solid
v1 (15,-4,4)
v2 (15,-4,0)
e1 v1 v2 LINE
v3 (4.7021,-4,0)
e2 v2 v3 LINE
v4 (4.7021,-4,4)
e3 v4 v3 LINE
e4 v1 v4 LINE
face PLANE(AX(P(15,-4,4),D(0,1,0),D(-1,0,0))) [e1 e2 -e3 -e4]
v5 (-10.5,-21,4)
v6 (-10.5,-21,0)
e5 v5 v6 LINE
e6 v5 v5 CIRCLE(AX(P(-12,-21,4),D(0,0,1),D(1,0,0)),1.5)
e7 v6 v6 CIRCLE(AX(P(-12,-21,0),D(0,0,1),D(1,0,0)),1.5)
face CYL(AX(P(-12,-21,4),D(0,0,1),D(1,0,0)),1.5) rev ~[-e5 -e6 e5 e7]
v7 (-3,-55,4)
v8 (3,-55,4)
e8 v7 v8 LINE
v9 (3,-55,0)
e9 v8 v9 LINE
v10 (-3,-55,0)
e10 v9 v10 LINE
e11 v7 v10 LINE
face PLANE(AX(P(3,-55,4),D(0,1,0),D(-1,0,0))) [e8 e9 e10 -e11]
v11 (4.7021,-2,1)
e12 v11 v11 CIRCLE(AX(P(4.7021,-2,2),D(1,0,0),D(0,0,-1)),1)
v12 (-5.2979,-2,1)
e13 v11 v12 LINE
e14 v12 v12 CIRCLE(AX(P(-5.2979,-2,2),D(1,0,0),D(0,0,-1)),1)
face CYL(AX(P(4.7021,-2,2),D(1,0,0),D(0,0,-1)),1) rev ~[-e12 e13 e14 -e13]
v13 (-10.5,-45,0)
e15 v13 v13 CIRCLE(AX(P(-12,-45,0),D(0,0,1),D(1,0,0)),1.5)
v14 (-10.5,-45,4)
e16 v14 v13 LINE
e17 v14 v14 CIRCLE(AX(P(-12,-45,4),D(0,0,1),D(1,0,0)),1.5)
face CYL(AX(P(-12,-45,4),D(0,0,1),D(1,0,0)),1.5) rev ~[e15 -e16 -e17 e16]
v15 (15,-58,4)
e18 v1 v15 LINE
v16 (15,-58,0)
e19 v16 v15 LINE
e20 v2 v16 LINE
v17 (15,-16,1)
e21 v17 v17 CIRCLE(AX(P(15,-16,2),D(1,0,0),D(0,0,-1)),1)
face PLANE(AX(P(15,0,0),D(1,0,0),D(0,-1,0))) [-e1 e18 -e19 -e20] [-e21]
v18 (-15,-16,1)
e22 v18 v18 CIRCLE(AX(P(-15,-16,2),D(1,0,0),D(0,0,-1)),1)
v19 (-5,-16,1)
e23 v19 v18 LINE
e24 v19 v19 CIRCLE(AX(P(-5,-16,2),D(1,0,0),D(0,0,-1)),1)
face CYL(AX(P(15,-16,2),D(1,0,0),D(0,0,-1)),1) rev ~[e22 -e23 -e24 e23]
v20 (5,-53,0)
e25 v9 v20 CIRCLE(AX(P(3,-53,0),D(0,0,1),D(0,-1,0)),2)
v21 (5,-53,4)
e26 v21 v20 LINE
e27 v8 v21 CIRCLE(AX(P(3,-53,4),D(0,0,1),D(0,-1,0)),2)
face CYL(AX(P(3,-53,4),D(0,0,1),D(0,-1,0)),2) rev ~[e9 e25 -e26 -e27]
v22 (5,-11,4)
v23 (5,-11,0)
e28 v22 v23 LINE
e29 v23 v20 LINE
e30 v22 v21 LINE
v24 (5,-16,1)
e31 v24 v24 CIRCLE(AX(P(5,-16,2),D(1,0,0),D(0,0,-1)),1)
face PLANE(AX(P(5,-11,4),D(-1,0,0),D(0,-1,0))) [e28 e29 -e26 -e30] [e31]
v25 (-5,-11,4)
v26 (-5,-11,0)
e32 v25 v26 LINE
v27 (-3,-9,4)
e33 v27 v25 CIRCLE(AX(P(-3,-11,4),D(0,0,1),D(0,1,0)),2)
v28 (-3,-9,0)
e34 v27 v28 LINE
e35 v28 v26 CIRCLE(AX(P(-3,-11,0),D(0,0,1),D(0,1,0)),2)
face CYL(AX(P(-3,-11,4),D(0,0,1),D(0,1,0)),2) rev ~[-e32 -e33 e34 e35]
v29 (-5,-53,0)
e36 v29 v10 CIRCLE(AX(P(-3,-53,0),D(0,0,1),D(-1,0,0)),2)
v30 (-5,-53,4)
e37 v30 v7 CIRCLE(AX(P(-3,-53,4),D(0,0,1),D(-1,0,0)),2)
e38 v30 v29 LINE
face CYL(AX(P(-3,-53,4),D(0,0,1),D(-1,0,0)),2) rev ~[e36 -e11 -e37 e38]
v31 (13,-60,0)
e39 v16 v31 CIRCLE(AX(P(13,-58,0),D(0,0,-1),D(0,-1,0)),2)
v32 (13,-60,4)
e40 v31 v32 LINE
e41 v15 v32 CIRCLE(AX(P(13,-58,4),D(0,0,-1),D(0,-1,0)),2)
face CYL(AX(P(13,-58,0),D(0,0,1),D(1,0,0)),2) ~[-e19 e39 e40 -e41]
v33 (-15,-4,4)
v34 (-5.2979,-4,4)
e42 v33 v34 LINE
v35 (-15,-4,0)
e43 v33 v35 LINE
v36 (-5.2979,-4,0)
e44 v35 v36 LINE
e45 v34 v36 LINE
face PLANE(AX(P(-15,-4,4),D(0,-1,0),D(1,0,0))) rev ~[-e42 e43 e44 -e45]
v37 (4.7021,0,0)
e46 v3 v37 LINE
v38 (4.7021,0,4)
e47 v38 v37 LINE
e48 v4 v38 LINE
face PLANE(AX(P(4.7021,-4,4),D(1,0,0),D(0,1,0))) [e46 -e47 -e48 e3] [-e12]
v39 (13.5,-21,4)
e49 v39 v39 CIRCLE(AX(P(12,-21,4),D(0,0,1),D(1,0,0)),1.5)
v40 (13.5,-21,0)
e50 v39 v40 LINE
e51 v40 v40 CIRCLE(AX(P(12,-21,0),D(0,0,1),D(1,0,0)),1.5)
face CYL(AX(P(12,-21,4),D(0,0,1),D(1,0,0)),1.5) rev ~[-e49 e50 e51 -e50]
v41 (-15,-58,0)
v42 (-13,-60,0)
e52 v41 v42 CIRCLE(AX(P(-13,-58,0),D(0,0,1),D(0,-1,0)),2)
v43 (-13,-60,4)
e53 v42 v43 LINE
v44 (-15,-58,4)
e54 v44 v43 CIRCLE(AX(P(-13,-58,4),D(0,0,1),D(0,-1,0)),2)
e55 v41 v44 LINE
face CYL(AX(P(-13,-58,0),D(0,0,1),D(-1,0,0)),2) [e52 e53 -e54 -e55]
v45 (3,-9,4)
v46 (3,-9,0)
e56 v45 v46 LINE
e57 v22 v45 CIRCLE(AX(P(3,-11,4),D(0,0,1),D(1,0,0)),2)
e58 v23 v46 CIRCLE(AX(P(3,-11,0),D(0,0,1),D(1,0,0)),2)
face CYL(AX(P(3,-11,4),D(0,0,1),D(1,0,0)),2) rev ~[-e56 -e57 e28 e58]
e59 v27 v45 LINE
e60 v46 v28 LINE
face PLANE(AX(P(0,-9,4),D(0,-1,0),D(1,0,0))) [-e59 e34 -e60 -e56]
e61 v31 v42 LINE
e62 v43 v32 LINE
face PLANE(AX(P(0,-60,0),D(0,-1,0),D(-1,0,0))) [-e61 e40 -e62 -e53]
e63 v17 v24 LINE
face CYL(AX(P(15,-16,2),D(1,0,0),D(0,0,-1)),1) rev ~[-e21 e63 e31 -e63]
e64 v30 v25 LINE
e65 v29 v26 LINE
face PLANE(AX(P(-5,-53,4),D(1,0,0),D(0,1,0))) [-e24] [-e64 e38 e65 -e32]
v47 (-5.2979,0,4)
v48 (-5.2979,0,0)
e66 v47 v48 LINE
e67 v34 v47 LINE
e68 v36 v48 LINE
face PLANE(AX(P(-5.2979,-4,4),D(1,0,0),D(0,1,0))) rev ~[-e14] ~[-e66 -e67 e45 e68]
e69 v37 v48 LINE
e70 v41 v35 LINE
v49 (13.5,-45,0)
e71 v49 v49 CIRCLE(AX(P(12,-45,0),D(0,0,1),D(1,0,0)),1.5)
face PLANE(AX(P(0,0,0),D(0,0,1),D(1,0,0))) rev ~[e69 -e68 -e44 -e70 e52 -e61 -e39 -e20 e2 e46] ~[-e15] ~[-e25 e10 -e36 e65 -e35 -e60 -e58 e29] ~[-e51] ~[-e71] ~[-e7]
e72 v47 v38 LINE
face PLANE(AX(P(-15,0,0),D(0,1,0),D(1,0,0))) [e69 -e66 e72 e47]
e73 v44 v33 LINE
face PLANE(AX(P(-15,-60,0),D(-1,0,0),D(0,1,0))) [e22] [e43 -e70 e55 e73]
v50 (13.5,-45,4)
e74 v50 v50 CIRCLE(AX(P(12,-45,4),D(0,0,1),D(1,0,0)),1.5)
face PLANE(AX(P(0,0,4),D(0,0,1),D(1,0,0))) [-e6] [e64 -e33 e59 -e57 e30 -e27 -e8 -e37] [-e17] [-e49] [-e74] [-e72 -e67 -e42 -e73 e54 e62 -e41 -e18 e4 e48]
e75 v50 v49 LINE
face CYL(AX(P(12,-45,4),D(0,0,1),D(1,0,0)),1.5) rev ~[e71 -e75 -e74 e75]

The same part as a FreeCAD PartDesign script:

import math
import FreeCAD as App
import Part
import Sketcher


def edges_at(feature, points):
    """Names of the edges that pass closest to the given points."""
    edges = feature.Shape.Edges
    near = lambda p: min(range(len(edges)), key=lambda i: edges[i].distToShape(Part.Vertex(*p))[0])
    return sorted({f"Edge{near(p) + 1}" for p in points})


def add_polygon(sketch, points):
    """Adds a closed chain of lines whose ends are joined by coincident constraints."""
    first, n = sketch.GeometryCount, len(points)
    for a, b in zip(points, points[1:] + points[:1]):
        sketch.addGeometry(Part.LineSegment(App.Vector(*a, 0), App.Vector(*b, 0)), False)
    for i in range(n):
        sketch.addConstraint(Sketcher.Constraint("Coincident", first + i, 2, first + (i + 1) % n, 1))

doc = App.newDocument("Part")
body = doc.addObject("PartDesign::Body", "Body")

# Sketch on XY plane
sketch1 = body.newObject("Sketcher::SketchObject", "Sketch")
sketch1.AttachmentSupport = (doc.getObject("XY_Plane"), [""])
sketch1.MapMode = "FlatFace"
add_polygon(sketch1, [(-15, 0), (-15, -60), (15, -60), (15, 0)])  # lines 0-3
sketch1.addConstraint(Sketcher.Constraint("Vertical", 0))
sketch1.addConstraint(Sketcher.Constraint("Horizontal", 1))
sketch1.addConstraint(Sketcher.Constraint("Vertical", 2))
sketch1.addConstraint(Sketcher.Constraint("Horizontal", 3))
sketch1.addConstraint(Sketcher.Constraint("Symmetric", 2, 2, 3, 2, -1, 1))
sketch1.addConstraint(Sketcher.Constraint("DistanceX", 1, 1, 1, 2, 30.0))
sketch1.addConstraint(Sketcher.Constraint("DistanceY", 0, 2, 0, 1, 60.0))
pad1 = body.newObject("PartDesign::Pad", "Pad")
pad1.Profile = sketch1
pad1.Length = 4

# Sketch on XY plane
sketch2 = body.newObject("Sketcher::SketchObject", "Sketch001")
sketch2.AttachmentSupport = (doc.getObject("XY_Plane"), [""])
sketch2.MapMode = "FlatFace"
sketch2.AttachmentOffset = App.Placement(App.Vector(0, 0, 4), App.Rotation())
add_polygon(sketch2, [(15, -4), (15, 0), (4.7, 0), (4.7, -4)])  # lines 0-3
add_polygon(sketch2, [(-5.3, -4), (-5.3, 0), (-15, 0), (-15, -4)])  # lines 4-7
sketch2.addGeometry(Part.LineSegment(App.Vector(3, -9, 0), App.Vector(-3, -9, 0)), False)  # 8
sketch2.addGeometry(Part.ArcOfCircle(Part.Circle(App.Vector(-3, -11, 0), App.Vector(0, 0, 1), 2), math.radians(90), math.radians(180)), False)  # 9
sketch2.addGeometry(Part.LineSegment(App.Vector(-5, -11, 0), App.Vector(-5, -53, 0)), False)  # 10
sketch2.addGeometry(Part.ArcOfCircle(Part.Circle(App.Vector(-3, -53, 0), App.Vector(0, 0, 1), 2), math.radians(180), math.radians(270)), False)  # 11
sketch2.addGeometry(Part.LineSegment(App.Vector(-3, -55, 0), App.Vector(3, -55, 0)), False)  # 12
sketch2.addGeometry(Part.ArcOfCircle(Part.Circle(App.Vector(3, -53, 0), App.Vector(0, 0, 1), 2), math.radians(-90), math.radians(0)), False)  # 13
sketch2.addGeometry(Part.LineSegment(App.Vector(5, -53, 0), App.Vector(5, -11, 0)), False)  # 14
sketch2.addGeometry(Part.ArcOfCircle(Part.Circle(App.Vector(3, -11, 0), App.Vector(0, 0, 1), 2), math.radians(0), math.radians(90)), False)  # 15
sketch2.addGeometry(Part.Circle(App.Vector(-12, -21, 0), App.Vector(0, 0, 1), 1.5), False)  # 16
sketch2.addGeometry(Part.Circle(App.Vector(-12, -45, 0), App.Vector(0, 0, 1), 1.5), False)  # 17
sketch2.addGeometry(Part.Circle(App.Vector(12, -21, 0), App.Vector(0, 0, 1), 1.5), False)  # 18
sketch2.addGeometry(Part.Circle(App.Vector(12, -45, 0), App.Vector(0, 0, 1), 1.5), False)  # 19
sketch2.addConstraint(Sketcher.Constraint("Tangent", 8, 2, 9, 1))
sketch2.addConstraint(Sketcher.Constraint("Tangent", 9, 2, 10, 1))
sketch2.addConstraint(Sketcher.Constraint("Tangent", 10, 2, 11, 1))
sketch2.addConstraint(Sketcher.Constraint("Tangent", 11, 2, 12, 1))
sketch2.addConstraint(Sketcher.Constraint("Tangent", 12, 2, 13, 1))
sketch2.addConstraint(Sketcher.Constraint("Tangent", 13, 2, 14, 1))
sketch2.addConstraint(Sketcher.Constraint("Tangent", 14, 2, 15, 1))
sketch2.addConstraint(Sketcher.Constraint("Tangent", 15, 2, 8, 1))
sketch2.addConstraint(Sketcher.Constraint("Vertical", 0))
sketch2.addConstraint(Sketcher.Constraint("Horizontal", 1))
sketch2.addConstraint(Sketcher.Constraint("Vertical", 2))
sketch2.addConstraint(Sketcher.Constraint("Horizontal", 3))
sketch2.addConstraint(Sketcher.Constraint("Vertical", 4))
sketch2.addConstraint(Sketcher.Constraint("Horizontal", 5))
sketch2.addConstraint(Sketcher.Constraint("Vertical", 6))
sketch2.addConstraint(Sketcher.Constraint("Horizontal", 7))
sketch2.addConstraint(Sketcher.Constraint("Horizontal", 8))
sketch2.addConstraint(Sketcher.Constraint("Vertical", 10))
sketch2.addConstraint(Sketcher.Constraint("Horizontal", 12))
sketch2.addConstraint(Sketcher.Constraint("Vertical", 14))
sketch2.addConstraint(Sketcher.Constraint("Equal", 9, 11))
sketch2.addConstraint(Sketcher.Constraint("Equal", 11, 13))
sketch2.addConstraint(Sketcher.Constraint("Equal", 13, 15))
sketch2.addConstraint(Sketcher.Constraint("Equal", 16, 17))
sketch2.addConstraint(Sketcher.Constraint("Equal", 17, 18))
sketch2.addConstraint(Sketcher.Constraint("Equal", 18, 19))
sketch2.addConstraint(Sketcher.Constraint("Symmetric", 0, 2, 5, 2, -1, 1))
sketch2.addConstraint(Sketcher.Constraint("Symmetric", 16, 3, 18, 3, -2))
sketch2.addConstraint(Sketcher.Constraint("Symmetric", 17, 3, 19, 3, -2))
sketch2.addConstraint(Sketcher.Constraint("PointOnObject", 0, 2, -1))
sketch2.addConstraint(Sketcher.Constraint("Horizontal", 3, 2, 6, 2))
sketch2.addConstraint(Sketcher.Constraint("Vertical", 16, 3, 17, 3))
sketch2.addConstraint(Sketcher.Constraint("Diameter", 16, 3.0))
sketch2.addConstraint(Sketcher.Constraint("Radius", 9, 2.0))
sketch2.addConstraint(Sketcher.Constraint("DistanceY", 0, 1, 0, 2, 4.0))
sketch2.addConstraint(Sketcher.Constraint("DistanceX", 9, 3, -1, 1, 3.0))
sketch2.addConstraint(Sketcher.Constraint("DistanceX", -1, 1, 13, 3, 3.0))
sketch2.addConstraint(Sketcher.Constraint("DistanceX", 16, 3, -1, 1, 12.0))
sketch2.addConstraint(Sketcher.Constraint("DistanceX", -1, 1, 0, 2, 15.0))
sketch2.addConstraint(Sketcher.Constraint("DistanceY", 16, 3, 9, 3, 10.0))
sketch2.addConstraint(Sketcher.Constraint("DistanceY", 17, 3, 16, 3, 24.0))
sketch2.addConstraint(Sketcher.Constraint("DistanceX", 4, 2, 1, 2, 10.0))
sketch2.addConstraint(Sketcher.Constraint("DistanceY", 8, 2, 7, 2, 5.0))
sketch2.addConstraint(Sketcher.Constraint("DistanceY", 11, 2, 17, 3, 10.0))
sketch2.addConstraint(Sketcher.Constraint("DistanceX", 1, 2, 1, 1, 10.298))
pocket1 = body.newObject("PartDesign::Pocket", "Pocket")
pocket1.Profile = sketch2
pocket1.Length = 4
doc.recompute()

fillet = body.newObject("PartDesign::Fillet", "Fillet")
fillet.Base = (pocket1, edges_at(pocket1, [(15, -60, 2), (-15, -60, 2)]))
fillet.Radius = 2

# Sketch on YZ plane
sketch3 = body.newObject("Sketcher::SketchObject", "Sketch002")
sketch3.AttachmentSupport = (doc.getObject("YZ_Plane"), [""])
sketch3.MapMode = "FlatFace"
sketch3.AttachmentOffset = App.Placement(App.Vector(0, 0, 4.7021), App.Rotation())
sketch3.addGeometry(Part.Circle(App.Vector(-2, 2, 0), App.Vector(0, 0, 1), 1), False)
sketch3.addConstraint(Sketcher.Constraint("Diameter", 0, 2.0))
sketch3.addConstraint(Sketcher.Constraint("DistanceX", 0, 3, -1, 1, 2.0))
sketch3.addConstraint(Sketcher.Constraint("DistanceY", -1, 1, 0, 3, 2.0))
pocket2 = body.newObject("PartDesign::Pocket", "Pocket001")
pocket2.Profile = sketch3
pocket2.Type = "ThroughAll"

# Sketch on YZ plane
sketch4 = body.newObject("Sketcher::SketchObject", "Sketch003")
sketch4.AttachmentSupport = (doc.getObject("YZ_Plane"), [""])
sketch4.MapMode = "FlatFace"
sketch4.AttachmentOffset = App.Placement(App.Vector(0, 0, 15), App.Rotation())
sketch4.addGeometry(Part.Circle(App.Vector(-16, 2, 0), App.Vector(0, 0, 1), 1), False)
sketch4.addConstraint(Sketcher.Constraint("Diameter", 0, 2.0))
sketch4.addConstraint(Sketcher.Constraint("DistanceY", -1, 1, 0, 3, 2.0))
sketch4.addConstraint(Sketcher.Constraint("DistanceX", 0, 3, -1, 1, 16.0))
pocket3 = body.newObject("PartDesign::Pocket", "Pocket002")
pocket3.Profile = sketch4
pocket3.Type = "ThroughAll"

doc.recompute()
